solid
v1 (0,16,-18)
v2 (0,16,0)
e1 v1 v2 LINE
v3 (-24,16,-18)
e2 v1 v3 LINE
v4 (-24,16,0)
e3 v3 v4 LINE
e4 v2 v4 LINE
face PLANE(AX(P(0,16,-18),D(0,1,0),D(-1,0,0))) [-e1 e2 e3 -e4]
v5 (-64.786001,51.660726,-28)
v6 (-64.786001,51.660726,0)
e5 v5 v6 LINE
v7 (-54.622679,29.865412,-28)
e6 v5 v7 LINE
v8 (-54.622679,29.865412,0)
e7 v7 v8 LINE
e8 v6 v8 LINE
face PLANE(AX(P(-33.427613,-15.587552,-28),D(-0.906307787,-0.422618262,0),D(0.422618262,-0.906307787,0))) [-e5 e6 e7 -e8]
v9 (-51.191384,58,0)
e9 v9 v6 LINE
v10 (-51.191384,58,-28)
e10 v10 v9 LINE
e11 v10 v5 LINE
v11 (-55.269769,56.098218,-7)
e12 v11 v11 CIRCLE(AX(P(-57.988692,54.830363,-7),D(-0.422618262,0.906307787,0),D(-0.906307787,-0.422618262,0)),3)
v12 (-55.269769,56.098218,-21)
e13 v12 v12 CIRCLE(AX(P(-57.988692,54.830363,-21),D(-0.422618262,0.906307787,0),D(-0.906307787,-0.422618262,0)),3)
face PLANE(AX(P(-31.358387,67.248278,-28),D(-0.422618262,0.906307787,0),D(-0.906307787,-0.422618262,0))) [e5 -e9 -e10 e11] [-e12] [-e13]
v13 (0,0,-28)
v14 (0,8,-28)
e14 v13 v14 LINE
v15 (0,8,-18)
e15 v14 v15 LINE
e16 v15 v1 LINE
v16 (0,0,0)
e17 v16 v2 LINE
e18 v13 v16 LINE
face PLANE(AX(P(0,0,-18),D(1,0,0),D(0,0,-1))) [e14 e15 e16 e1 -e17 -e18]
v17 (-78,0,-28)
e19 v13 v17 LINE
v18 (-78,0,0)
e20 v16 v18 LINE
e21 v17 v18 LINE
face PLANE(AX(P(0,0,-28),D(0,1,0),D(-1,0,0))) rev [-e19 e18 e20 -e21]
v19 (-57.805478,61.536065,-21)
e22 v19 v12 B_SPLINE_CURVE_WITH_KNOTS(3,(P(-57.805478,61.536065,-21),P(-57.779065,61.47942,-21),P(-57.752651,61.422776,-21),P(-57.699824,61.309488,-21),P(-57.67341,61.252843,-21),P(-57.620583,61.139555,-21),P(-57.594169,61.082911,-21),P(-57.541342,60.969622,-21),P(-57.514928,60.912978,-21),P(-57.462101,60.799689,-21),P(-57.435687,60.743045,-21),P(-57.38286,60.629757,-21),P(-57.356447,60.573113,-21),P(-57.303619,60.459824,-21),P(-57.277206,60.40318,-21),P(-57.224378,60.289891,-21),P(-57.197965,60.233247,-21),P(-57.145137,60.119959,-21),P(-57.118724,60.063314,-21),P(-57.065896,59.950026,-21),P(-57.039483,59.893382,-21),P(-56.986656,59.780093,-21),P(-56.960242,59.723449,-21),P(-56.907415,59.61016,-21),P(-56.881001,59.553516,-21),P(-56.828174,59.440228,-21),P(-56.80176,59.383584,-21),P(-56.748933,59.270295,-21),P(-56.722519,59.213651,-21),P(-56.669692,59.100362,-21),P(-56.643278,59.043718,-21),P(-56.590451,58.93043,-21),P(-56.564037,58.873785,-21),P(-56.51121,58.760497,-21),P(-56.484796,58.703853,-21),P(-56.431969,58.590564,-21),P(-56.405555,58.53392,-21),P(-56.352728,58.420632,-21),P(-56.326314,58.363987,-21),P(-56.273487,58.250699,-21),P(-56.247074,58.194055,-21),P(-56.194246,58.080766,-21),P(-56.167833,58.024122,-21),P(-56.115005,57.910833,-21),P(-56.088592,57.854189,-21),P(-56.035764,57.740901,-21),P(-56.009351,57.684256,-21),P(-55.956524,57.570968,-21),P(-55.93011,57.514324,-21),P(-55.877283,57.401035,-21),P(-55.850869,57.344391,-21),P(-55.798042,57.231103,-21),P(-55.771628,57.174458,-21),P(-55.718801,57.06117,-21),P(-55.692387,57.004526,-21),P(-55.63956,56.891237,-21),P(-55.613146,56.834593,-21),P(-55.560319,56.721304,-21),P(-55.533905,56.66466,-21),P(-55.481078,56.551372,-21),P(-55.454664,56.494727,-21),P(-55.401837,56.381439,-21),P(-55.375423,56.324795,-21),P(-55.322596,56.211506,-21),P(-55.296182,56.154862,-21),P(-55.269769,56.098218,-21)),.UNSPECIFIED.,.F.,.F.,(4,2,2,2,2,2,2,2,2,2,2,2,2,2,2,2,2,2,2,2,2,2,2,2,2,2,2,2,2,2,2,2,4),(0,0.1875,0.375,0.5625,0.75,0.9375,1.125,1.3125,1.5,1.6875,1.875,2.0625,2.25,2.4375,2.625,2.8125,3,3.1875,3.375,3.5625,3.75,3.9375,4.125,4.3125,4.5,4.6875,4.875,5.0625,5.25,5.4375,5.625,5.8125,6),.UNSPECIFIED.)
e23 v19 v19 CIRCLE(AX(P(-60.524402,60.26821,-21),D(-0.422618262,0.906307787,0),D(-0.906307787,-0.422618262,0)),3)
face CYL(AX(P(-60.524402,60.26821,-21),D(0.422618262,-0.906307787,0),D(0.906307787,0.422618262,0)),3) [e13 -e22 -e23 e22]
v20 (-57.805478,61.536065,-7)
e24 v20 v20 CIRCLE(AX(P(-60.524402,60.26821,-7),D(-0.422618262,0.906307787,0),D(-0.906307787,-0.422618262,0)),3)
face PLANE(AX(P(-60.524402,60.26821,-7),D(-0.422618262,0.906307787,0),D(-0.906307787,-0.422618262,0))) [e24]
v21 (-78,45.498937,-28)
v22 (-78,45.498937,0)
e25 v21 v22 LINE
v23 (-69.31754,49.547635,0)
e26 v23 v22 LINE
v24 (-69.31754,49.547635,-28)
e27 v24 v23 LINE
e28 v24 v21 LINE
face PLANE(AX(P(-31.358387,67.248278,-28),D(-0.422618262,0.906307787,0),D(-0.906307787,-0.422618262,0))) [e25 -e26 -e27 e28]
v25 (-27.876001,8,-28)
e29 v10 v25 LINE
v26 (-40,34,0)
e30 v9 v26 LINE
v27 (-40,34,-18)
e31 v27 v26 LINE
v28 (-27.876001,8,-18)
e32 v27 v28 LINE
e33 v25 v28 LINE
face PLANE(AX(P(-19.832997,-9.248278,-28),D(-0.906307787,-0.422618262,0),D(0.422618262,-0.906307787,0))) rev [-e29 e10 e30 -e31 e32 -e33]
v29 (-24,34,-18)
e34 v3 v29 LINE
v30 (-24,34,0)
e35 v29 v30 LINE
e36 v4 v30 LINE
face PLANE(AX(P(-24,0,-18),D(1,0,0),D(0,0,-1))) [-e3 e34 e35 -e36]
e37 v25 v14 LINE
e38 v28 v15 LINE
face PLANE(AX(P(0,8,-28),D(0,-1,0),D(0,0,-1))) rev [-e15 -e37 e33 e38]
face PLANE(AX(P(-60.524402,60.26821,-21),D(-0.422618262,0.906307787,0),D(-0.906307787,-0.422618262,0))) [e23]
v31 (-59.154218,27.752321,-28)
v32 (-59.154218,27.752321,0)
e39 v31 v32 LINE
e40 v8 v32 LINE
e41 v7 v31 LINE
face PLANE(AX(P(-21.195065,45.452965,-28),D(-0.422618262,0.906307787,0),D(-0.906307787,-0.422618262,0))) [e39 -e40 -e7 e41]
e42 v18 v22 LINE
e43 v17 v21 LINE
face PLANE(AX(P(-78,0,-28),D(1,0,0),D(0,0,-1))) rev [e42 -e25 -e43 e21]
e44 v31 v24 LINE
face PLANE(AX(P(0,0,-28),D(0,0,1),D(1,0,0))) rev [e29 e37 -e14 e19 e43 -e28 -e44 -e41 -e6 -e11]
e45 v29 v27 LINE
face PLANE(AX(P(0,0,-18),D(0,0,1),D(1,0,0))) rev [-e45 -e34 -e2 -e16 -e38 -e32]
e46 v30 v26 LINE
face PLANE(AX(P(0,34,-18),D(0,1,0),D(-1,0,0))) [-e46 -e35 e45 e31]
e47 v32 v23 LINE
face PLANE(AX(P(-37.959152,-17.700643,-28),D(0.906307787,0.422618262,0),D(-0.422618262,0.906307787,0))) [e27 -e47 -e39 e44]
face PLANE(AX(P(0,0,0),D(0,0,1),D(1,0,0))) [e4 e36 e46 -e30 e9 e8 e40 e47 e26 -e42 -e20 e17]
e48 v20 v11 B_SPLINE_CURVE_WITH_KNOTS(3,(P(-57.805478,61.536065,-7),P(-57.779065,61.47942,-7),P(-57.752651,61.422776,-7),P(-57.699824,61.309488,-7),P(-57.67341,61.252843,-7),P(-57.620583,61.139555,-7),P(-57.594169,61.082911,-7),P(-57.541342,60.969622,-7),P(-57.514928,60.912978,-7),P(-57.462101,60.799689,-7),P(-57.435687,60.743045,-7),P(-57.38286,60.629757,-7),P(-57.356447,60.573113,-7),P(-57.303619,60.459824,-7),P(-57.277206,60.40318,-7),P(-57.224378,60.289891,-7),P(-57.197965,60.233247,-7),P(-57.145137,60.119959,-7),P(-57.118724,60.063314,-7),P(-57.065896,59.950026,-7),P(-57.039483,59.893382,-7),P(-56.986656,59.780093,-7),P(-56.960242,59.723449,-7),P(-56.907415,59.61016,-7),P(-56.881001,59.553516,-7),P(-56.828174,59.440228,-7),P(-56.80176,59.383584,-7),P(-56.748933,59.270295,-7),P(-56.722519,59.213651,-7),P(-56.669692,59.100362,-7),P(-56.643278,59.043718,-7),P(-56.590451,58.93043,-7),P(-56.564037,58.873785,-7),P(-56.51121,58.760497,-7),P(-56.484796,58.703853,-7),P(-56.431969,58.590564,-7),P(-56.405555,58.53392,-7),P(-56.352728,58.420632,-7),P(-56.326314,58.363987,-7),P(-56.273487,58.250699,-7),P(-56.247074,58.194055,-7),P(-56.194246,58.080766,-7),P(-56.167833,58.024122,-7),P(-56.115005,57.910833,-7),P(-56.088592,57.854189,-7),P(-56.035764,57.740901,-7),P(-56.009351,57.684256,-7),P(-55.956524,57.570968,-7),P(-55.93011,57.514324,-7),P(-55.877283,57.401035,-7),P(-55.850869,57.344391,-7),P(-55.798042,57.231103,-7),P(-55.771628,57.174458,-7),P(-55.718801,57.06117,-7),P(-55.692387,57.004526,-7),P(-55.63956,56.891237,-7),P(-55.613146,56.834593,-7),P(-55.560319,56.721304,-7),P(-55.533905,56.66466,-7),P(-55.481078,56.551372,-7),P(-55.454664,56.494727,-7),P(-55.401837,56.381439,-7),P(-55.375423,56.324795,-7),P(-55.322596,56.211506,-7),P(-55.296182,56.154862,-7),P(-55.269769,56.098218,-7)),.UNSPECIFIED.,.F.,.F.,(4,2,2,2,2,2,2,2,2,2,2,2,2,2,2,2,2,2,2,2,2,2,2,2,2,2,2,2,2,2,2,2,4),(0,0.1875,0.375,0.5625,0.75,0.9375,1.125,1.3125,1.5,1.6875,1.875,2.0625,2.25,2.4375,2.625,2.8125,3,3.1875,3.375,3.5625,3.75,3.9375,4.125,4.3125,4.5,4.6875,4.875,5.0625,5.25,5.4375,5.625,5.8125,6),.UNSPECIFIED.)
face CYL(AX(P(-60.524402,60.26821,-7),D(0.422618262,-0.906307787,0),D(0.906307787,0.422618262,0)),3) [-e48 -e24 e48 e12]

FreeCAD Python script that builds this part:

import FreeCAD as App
import Part
import Sketcher

V = App.Vector
Q = App.Units.Quantity

doc = App.newDocument("Part")
body = doc.addObject("PartDesign::Body", "Body")

sketch1 = body.newObject("Sketcher::SketchObject", "Sketch")
sketch1.AttachmentSupport = (doc.getObject("XY_Plane"), [""])
sketch1.MapMode = "FlatFace"
sketch1.addGeometry(Part.LineSegment(V(-40, 34, 0), V(-28, 8, 0)), False)
sketch1.addGeometry(Part.LineSegment(V(-28, 8, 0), V(0, 8, 0)), False)
sketch1.addGeometry(Part.LineSegment(V(0, 8, 0), V(0, 16, 0)), False)
sketch1.addGeometry(Part.LineSegment(V(0, 16, 0), V(-24, 16, 0)), False)
sketch1.addGeometry(Part.LineSegment(V(-24, 16, 0), V(-24, 34, 0)), False)
sketch1.addGeometry(Part.LineSegment(V(-24, 34, 0), V(-40, 34, 0)), False)
sketch1.addConstraint(Sketcher.Constraint("Coincident", 0, 2, 1, 1))
sketch1.addConstraint(Sketcher.Constraint("Coincident", 1, 2, 2, 1))
sketch1.addConstraint(Sketcher.Constraint("Coincident", 2, 2, 3, 1))
sketch1.addConstraint(Sketcher.Constraint("Coincident", 3, 2, 4, 1))
sketch1.addConstraint(Sketcher.Constraint("Coincident", 4, 2, 5, 1))
sketch1.addConstraint(Sketcher.Constraint("Coincident", 5, 2, 0, 1))
sketch1.addConstraint(Sketcher.Constraint("Horizontal", 1))
sketch1.addConstraint(Sketcher.Constraint("Vertical", 2))
sketch1.addConstraint(Sketcher.Constraint("Horizontal", 3))
sketch1.addConstraint(Sketcher.Constraint("Vertical", 4))
sketch1.addConstraint(Sketcher.Constraint("Horizontal", 5))
sketch1.addConstraint(Sketcher.Constraint("PointOnObject", 1, 2, -2))
sketch1.addConstraint(Sketcher.Constraint("DistanceX", 3, 2, 3, 1, Q("24 mm")))
sketch1.addConstraint(Sketcher.Constraint("DistanceX", 5, 2, 5, 1, Q("16 mm")))
sketch1.addConstraint(Sketcher.Constraint("DistanceY", 2, 1, 2, 2, Q("8 mm")))
sketch1.addConstraint(Sketcher.Constraint("DistanceY", 4, 1, 4, 2, Q("18 mm")))
sketch1.addConstraint(Sketcher.Constraint("Angle", 0, Q("-65 deg")))
sketch1.addConstraint(Sketcher.Constraint("DistanceY", -1, 1, 0, 2, Q("8 mm")))
pad1 = body.newObject("PartDesign::Pad", "Pad")
pad1.Profile = sketch1
pad1.Length = 18
pad1.Reversed = True

sketch2 = body.newObject("Sketcher::SketchObject", "Sketch001")
sketch2.AttachmentSupport = (doc.getObject("XY_Plane"), [""])
sketch2.MapMode = "FlatFace"
sketch2.addGeometry(Part.LineSegment(V(-78, 0, 0), V(0, 0, 0)), False)
sketch2.addGeometry(Part.LineSegment(V(0, 0, 0), V(0, 8, 0)), False)
sketch2.addGeometry(Part.LineSegment(V(0, 8, 0), V(-28, 8, 0)), False)
sketch2.addGeometry(Part.LineSegment(V(-28, 8, 0), V(-40, 34, 0)), False)
sketch2.addGeometry(Part.LineSegment(V(-40, 34, 0), V(-51, 58, 0)), False)
sketch2.addGeometry(Part.LineSegment(V(-51, 58, 0), V(-65, 52, 0)), False)
sketch2.addGeometry(Part.LineSegment(V(-65, 52, 0), V(-55, 30, 0)), False)
sketch2.addGeometry(Part.LineSegment(V(-55, 30, 0), V(-59, 28, 0)), False)
sketch2.addGeometry(Part.LineSegment(V(-59, 28, 0), V(-69, 50, 0)), False)
sketch2.addGeometry(Part.LineSegment(V(-69, 50, 0), V(-78, 45, 0)), False)
sketch2.addGeometry(Part.LineSegment(V(-78, 45, 0), V(-78, 0, 0)), False)
sketch2.addConstraint(Sketcher.Constraint("Coincident", 0, 2, 1, 1))
sketch2.addConstraint(Sketcher.Constraint("Coincident", 1, 2, 2, 1))
sketch2.addConstraint(Sketcher.Constraint("Coincident", 2, 2, 3, 1))
sketch2.addConstraint(Sketcher.Constraint("Coincident", 3, 2, 4, 1))
sketch2.addConstraint(Sketcher.Constraint("Coincident", 4, 2, 5, 1))
sketch2.addConstraint(Sketcher.Constraint("Coincident", 5, 2, 6, 1))
sketch2.addConstraint(Sketcher.Constraint("Coincident", 6, 2, 7, 1))
sketch2.addConstraint(Sketcher.Constraint("Coincident", 7, 2, 8, 1))
sketch2.addConstraint(Sketcher.Constraint("Coincident", 8, 2, 9, 1))
sketch2.addConstraint(Sketcher.Constraint("Coincident", 9, 2, 10, 1))
sketch2.addConstraint(Sketcher.Constraint("Coincident", 10, 2, 0, 1))
sketch2.addConstraint(Sketcher.Constraint("Horizontal", 0))
sketch2.addConstraint(Sketcher.Constraint("Vertical", 1))
sketch2.addConstraint(Sketcher.Constraint("Horizontal", 2))
sketch2.addConstraint(Sketcher.Constraint("Vertical", 10))
sketch2.addConstraint(Sketcher.Constraint("Coincident", 0, 2, -1, 1))
sketch2.addConstraint(Sketcher.Constraint("Parallel", 3, 4))
sketch2.addConstraint(Sketcher.Constraint("Perpendicular", 4, 5))
sketch2.addConstraint(Sketcher.Constraint("Perpendicular", 5, 6))
sketch2.addConstraint(Sketcher.Constraint("Perpendicular", 6, 7))
sketch2.addConstraint(Sketcher.Constraint("Perpendicular", 7, 8))
sketch2.addConstraint(Sketcher.Constraint("Perpendicular", 8, 9))
sketch2.addConstraint(Sketcher.Constraint("Equal", 6, 8))
sketch2.addConstraint(Sketcher.Constraint("DistanceX", 0, 1, 0, 2, Q("78 mm")))
sketch2.addConstraint(Sketcher.Constraint("DistanceY", 1, 1, 1, 2, Q("8 mm")))
sketch2.addConstraint(Sketcher.Constraint("Angle", 3, Q("115 deg")))
sketch2.addConstraint(Sketcher.Constraint("Distance", 5, Q("15 mm")))
sketch2.addConstraint(Sketcher.Constraint("Distance", 7, Q("5 mm")))
sketch2.addConstraint(Sketcher.Constraint("DistanceX", 3, 2, -1, 1, Q("40 mm")))
sketch2.addConstraint(Sketcher.Constraint("DistanceY", -1, 1, 3, 2, Q("34 mm")))
sketch2.addConstraint(Sketcher.Constraint("DistanceY", -1, 1, 4, 2, Q("58 mm")))
sketch2.addConstraint(Sketcher.Constraint("DistanceX", 6, 2, -1, 1, Q("54.622679 mm")))
pad2 = body.newObject("PartDesign::Pad", "Pad001")
pad2.Profile = sketch2
pad2.Length = 28
pad2.Reversed = True

sketch3 = body.newObject("Sketcher::SketchObject", "Sketch002")
sketch3.Placement = App.Placement(V(-31.358387, 67.248278, 0), App.Rotation(V(0.906307787, 0.422618262, 0), V(0, 0, -1), V(-0.422618262, 0.906307787, 0), "ZXY"))
sketch3.addGeometry(Part.Circle(V(-29.4, 7, 0), V(0, 0, 1), 3), False)
sketch3.addGeometry(Part.Circle(V(-29.4, 21, 0), V(0, 0, 1), 3), False)
sketch3.addConstraint(Sketcher.Constraint("Equal", 0, 1))
sketch3.addConstraint(Sketcher.Constraint("Vertical", 0, 3, 1, 3))
sketch3.addConstraint(Sketcher.Constraint("Diameter", 0, Q("6 mm")))
sketch3.addConstraint(Sketcher.Constraint("DistanceY", -1, 1, 0, 3, Q("7 mm")))
sketch3.addConstraint(Sketcher.Constraint("DistanceY", -1, 1, 1, 3, Q("21 mm")))
sketch3.addConstraint(Sketcher.Constraint("DistanceX", 0, 3, -1, 1, Q("29.383291 mm")))
pad3 = body.newObject("PartDesign::Pad", "Pad002")
pad3.Profile = sketch3
pad3.Length = 6

doc.recompute()
